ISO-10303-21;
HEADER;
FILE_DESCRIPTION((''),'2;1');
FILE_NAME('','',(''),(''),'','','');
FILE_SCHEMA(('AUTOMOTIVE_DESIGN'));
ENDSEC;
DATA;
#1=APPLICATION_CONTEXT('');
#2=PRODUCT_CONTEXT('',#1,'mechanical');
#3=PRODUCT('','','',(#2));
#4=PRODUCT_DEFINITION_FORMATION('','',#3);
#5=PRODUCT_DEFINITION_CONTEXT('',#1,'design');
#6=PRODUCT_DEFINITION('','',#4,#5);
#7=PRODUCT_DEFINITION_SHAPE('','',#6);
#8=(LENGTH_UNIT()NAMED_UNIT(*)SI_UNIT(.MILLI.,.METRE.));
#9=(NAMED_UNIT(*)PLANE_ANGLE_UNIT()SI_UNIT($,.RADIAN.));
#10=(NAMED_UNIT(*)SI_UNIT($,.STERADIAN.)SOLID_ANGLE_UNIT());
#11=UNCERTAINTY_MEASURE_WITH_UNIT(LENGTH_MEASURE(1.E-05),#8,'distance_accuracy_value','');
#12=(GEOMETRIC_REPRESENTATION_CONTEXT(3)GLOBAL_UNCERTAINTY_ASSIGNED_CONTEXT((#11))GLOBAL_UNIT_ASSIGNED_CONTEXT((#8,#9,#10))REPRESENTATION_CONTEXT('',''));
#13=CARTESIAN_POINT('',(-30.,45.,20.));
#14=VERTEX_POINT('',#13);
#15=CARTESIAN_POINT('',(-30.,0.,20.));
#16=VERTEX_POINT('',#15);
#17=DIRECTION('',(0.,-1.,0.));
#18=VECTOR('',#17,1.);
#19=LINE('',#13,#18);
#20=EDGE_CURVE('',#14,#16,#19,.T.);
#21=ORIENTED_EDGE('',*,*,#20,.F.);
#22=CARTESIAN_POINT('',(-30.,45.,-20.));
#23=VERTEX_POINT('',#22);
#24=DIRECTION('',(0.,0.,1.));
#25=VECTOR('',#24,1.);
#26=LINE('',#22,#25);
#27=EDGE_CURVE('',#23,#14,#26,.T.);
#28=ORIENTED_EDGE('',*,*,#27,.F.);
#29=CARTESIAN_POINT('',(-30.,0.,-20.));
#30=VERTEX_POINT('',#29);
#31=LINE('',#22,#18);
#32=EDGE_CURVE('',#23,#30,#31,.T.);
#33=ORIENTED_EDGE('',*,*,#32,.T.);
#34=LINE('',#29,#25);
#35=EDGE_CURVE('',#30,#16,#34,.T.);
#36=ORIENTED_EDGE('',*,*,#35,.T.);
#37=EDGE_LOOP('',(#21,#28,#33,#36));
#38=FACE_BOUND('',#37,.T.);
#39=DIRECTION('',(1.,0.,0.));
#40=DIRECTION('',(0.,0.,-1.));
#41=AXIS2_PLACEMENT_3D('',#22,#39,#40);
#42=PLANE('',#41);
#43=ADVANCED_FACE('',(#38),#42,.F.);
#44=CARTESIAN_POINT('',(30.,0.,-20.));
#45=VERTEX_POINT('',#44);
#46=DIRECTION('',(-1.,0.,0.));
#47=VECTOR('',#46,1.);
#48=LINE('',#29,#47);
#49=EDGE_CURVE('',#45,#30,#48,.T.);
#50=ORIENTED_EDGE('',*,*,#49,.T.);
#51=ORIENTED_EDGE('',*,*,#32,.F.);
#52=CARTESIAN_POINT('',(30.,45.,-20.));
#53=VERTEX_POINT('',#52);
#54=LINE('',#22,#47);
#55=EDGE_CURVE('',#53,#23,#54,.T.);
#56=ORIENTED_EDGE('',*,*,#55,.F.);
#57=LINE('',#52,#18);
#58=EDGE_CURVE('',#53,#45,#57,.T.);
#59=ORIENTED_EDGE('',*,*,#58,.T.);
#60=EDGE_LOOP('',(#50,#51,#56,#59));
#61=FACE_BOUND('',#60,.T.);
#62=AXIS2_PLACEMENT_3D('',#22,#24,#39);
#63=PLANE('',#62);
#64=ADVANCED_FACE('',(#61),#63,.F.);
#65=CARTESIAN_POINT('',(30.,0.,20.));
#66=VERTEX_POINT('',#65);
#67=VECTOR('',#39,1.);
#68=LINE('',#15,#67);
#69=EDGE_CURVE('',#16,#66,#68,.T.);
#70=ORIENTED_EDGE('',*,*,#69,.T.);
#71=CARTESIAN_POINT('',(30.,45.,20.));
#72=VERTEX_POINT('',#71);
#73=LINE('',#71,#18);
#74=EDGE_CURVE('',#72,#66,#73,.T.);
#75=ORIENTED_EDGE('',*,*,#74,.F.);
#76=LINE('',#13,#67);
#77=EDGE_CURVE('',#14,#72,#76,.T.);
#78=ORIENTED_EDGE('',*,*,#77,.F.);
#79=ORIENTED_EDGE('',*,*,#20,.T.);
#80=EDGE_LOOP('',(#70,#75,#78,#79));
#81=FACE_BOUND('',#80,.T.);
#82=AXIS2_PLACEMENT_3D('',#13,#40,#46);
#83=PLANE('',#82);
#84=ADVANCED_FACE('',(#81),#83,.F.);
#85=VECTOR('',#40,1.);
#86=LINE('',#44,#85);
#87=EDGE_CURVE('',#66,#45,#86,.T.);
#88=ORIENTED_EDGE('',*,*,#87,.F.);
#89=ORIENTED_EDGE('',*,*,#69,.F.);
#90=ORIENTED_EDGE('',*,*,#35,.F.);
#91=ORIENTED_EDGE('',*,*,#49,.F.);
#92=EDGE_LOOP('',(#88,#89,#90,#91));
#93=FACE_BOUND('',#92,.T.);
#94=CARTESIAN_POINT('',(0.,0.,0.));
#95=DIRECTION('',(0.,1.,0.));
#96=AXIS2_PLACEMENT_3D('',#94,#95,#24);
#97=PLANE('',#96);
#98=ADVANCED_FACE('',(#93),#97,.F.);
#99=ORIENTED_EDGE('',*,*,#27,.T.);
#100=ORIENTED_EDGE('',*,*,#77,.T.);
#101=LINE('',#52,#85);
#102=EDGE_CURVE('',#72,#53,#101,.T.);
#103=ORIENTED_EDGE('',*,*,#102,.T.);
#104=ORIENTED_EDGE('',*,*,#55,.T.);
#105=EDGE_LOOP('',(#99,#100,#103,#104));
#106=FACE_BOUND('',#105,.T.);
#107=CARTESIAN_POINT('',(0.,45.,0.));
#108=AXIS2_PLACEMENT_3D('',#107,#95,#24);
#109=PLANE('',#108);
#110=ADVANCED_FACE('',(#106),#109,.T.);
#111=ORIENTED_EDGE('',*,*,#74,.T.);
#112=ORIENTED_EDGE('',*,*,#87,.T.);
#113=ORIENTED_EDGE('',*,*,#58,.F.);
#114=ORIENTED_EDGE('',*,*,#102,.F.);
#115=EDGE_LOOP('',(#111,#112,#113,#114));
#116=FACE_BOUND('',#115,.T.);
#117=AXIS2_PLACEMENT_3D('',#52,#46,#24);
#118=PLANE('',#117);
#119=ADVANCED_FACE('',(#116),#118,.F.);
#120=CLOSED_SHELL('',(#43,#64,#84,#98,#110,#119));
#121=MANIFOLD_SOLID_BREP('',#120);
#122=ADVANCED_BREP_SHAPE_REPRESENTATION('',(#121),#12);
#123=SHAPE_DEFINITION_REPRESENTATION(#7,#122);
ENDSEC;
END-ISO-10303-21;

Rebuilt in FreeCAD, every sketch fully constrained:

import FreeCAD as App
import Part
import Sketcher
from FreeCAD import Vector
Q = App.Units.Quantity


def add_polygon(sketch, points):
    """Adds a closed chain of lines whose ends are joined by coincident constraints."""
    first, n = sketch.GeometryCount, len(points)
    for a, b in zip(points, points[1:] + points[:1]):
        sketch.addGeometry(Part.LineSegment(App.Vector(*a, 0), App.Vector(*b, 0)), False)
    for i in range(n):
        sketch.addConstraint(Sketcher.Constraint("Coincident", first + i, 2, first + (i + 1) % n, 1))

doc = App.newDocument("Part")
body = doc.addObject("PartDesign::Body", "Body")

# Sketch on XZ plane
sketch1 = body.newObject("Sketcher::SketchObject", "Sketch")
sketch1.AttachmentSupport = (doc.getObject("XZ_Plane"), [""])
sketch1.MapMode = "FlatFace"
add_polygon(sketch1, [(-30, -20), (-30, 20), (30, 20), (30, -20)])  # lines 0-3
sketch1.addConstraint(Sketcher.Constraint("Vertical", 0))
sketch1.addConstraint(Sketcher.Constraint("Horizontal", 1))
sketch1.addConstraint(Sketcher.Constraint("Vertical", 2))
sketch1.addConstraint(Sketcher.Constraint("Horizontal", 3))
sketch1.addConstraint(Sketcher.Constraint("Symmetric", 0, 2, 2, 2, -1, 1))
sketch1.addConstraint(Sketcher.Constraint("DistanceX", 1, 1, 1, 2, Q("60 mm")))
sketch1.addConstraint(Sketcher.Constraint("DistanceY", 0, 1, 0, 2, Q("40 mm")))
pad1 = body.newObject("PartDesign::Pad", "Pad")
pad1.Profile = sketch1
pad1.Length = 45
pad1.Reversed = True

doc.recompute()
